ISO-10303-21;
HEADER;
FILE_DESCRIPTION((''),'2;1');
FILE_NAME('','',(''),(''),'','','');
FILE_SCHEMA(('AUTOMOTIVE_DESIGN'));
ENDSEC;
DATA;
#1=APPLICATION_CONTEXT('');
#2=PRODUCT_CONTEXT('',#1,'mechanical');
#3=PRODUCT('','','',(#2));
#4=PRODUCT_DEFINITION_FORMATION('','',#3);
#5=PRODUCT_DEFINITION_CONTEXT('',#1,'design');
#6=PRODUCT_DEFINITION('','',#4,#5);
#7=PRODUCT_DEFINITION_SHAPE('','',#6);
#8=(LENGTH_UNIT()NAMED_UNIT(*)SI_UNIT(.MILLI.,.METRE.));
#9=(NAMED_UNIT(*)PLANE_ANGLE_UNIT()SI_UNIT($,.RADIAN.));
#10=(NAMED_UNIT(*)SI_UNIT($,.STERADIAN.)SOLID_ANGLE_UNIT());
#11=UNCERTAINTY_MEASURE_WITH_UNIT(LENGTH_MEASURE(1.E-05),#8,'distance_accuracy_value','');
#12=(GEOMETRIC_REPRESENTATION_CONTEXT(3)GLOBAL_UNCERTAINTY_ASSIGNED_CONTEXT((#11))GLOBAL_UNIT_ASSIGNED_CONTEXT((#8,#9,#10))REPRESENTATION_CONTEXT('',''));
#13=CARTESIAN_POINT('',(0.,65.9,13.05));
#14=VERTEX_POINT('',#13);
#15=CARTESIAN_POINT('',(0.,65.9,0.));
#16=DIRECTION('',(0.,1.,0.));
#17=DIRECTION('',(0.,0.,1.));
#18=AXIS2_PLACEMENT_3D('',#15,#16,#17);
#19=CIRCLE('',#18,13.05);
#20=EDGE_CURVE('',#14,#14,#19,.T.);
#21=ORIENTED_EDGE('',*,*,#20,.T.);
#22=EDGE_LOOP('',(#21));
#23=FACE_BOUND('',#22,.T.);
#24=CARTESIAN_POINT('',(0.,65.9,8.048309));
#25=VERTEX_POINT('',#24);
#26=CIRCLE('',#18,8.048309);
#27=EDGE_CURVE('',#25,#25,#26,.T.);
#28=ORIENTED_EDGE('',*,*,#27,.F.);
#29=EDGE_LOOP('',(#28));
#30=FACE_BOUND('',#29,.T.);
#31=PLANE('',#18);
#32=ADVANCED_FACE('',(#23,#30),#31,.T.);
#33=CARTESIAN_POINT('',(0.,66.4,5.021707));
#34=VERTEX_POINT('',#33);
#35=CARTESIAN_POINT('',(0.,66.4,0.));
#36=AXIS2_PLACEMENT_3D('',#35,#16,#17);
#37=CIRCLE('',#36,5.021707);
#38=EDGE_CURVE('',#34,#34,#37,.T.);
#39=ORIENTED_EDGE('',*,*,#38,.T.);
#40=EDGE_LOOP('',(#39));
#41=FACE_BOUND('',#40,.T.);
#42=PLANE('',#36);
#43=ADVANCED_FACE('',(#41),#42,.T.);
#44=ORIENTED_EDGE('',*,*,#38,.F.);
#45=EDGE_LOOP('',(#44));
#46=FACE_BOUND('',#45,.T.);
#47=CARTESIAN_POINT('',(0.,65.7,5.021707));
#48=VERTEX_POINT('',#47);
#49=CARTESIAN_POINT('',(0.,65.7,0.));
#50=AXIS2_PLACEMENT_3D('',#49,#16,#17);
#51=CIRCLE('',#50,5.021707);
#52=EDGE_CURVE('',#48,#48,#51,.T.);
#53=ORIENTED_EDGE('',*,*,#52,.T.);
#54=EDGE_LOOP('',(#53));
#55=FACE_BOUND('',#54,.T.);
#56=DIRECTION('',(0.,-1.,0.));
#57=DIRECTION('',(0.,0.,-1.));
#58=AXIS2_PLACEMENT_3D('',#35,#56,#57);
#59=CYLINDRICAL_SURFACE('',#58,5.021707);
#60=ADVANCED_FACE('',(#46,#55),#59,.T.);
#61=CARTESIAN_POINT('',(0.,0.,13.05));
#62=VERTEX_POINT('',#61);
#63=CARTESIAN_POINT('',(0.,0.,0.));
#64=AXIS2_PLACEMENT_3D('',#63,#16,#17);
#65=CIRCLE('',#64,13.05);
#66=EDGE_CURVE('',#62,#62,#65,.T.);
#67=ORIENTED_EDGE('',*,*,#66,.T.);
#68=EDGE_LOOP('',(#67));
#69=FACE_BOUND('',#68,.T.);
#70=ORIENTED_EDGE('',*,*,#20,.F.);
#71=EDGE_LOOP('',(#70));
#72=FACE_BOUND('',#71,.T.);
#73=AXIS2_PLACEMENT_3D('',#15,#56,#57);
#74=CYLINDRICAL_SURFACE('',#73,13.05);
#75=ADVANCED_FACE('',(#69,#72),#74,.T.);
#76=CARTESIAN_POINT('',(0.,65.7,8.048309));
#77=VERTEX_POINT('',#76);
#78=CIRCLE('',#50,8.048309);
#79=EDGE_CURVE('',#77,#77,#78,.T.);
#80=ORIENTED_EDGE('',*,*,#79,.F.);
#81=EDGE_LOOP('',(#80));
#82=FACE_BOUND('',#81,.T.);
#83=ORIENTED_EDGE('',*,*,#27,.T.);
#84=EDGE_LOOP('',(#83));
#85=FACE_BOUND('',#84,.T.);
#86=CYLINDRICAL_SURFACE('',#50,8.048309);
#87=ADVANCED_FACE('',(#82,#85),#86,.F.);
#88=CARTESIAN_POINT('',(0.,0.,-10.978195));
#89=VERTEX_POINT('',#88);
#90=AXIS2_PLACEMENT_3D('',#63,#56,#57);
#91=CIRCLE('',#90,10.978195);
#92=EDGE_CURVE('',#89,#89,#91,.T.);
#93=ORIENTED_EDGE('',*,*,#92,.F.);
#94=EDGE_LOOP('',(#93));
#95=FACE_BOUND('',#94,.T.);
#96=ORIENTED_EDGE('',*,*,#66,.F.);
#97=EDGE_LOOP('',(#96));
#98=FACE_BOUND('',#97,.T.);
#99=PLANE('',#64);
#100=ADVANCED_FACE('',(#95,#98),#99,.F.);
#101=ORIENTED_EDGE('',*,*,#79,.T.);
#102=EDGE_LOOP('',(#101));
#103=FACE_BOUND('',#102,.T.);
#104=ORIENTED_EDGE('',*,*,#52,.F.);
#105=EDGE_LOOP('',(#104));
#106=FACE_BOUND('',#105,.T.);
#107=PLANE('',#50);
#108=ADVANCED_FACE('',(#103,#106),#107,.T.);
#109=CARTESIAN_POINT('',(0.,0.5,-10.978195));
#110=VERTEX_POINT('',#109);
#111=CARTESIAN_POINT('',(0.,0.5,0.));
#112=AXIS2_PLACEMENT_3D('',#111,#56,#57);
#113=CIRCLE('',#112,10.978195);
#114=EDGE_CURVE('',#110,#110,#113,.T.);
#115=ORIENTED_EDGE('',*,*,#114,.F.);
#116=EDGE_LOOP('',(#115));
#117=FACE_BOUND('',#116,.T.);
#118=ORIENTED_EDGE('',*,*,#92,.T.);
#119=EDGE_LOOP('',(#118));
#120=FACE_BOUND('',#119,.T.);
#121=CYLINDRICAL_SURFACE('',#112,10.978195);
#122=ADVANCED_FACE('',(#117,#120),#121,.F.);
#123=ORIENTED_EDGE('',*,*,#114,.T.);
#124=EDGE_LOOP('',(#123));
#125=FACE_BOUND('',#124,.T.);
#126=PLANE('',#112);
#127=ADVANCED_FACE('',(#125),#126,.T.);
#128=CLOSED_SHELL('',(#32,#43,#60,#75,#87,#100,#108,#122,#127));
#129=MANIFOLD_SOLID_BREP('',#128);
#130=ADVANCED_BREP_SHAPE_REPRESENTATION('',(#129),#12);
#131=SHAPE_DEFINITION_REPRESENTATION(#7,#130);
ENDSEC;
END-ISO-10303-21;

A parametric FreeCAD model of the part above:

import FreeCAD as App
import Part
import Sketcher

V = App.Vector

doc = App.newDocument("Part")
body = doc.addObject("PartDesign::Body", "Body")

sketch1 = doc.addObject("Sketcher::SketchObject", "Sketch")
body.addObject(sketch1)
sketch1.AttachmentSupport = (doc.XZ_Plane, [""])
sketch1.MapMode = "FlatFace"
sketch1.addGeometry(Part.Circle(V(0, 0, 0), V(0, 0, 1), 13.05), False)
sketch1.addConstraint([
    Sketcher.Constraint("Coincident", 0, 3, -1, 1),
    Sketcher.Constraint("Diameter", 0, 26.1),
])
pad1 = doc.addObject("PartDesign::Pad", "Pad")
body.addObject(pad1)
pad1.Profile = sketch1
pad1.Length = 65.9
pad1.Reversed = True

sketch2 = doc.addObject("Sketcher::SketchObject", "Sketch001")
body.addObject(sketch2)
sketch2.AttachmentSupport = (doc.XZ_Plane, [""])
sketch2.MapMode = "FlatFace"
sketch2.addGeometry(Part.Circle(V(0, 0, 0), V(0, 0, 1), 10.978195), False)
sketch2.addConstraint([
    Sketcher.Constraint("Coincident", 0, 3, -1, 1),
    Sketcher.Constraint("Diameter", 0, 21.956389),
])
pocket1 = doc.addObject("PartDesign::Pocket", "Pocket")
body.addObject(pocket1)
pocket1.Profile = sketch2
pocket1.Length = 0.5

sketch3 = doc.addObject("Sketcher::SketchObject", "Sketch002")
body.addObject(sketch3)
sketch3.AttachmentSupport = (doc.XZ_Plane, [""])
sketch3.MapMode = "FlatFace"
sketch3.AttachmentOffset = App.Placement(V(0, 0, -65.9), App.Rotation())
sketch3.addGeometry(Part.Circle(V(0, 0, 0), V(0, 0, 1), 5.021707), False)
sketch3.addConstraint([
    Sketcher.Constraint("Coincident", 0, 3, -1, 1),
    Sketcher.Constraint("Diameter", 0, 10.043414),
])
pad2 = doc.addObject("PartDesign::Pad", "Pad001")
body.addObject(pad2)
pad2.Profile = sketch3
pad2.Length = 0.5
pad2.Reversed = True

sketch4 = doc.addObject("Sketcher::SketchObject", "Sketch003")
body.addObject(sketch4)
sketch4.AttachmentSupport = (doc.XZ_Plane, [""])
sketch4.MapMode = "FlatFace"
sketch4.AttachmentOffset = App.Placement(V(0, 0, -65.7), App.Rotation())
sketch4.addGeometry([
    Part.Circle(V(0, 0, 0), V(0, 0, 1), 8.048309),
    Part.Circle(V(0, 0, 0), V(0, 0, 1), 5.021707),
], False)
sketch4.addConstraint([
    Sketcher.Constraint("Coincident", 0, 3, -1, 1),
    Sketcher.Constraint("Coincident", 1, 3, -1, 1),
    Sketcher.Constraint("Diameter", 0, 16.096618),
    Sketcher.Constraint("Diameter", 1, 10.043414),
])
pocket2 = doc.addObject("PartDesign::Pocket", "Pocket001")
body.addObject(pocket2)
pocket2.Profile = sketch4
pocket2.Length = 0.2

doc.recompute()
